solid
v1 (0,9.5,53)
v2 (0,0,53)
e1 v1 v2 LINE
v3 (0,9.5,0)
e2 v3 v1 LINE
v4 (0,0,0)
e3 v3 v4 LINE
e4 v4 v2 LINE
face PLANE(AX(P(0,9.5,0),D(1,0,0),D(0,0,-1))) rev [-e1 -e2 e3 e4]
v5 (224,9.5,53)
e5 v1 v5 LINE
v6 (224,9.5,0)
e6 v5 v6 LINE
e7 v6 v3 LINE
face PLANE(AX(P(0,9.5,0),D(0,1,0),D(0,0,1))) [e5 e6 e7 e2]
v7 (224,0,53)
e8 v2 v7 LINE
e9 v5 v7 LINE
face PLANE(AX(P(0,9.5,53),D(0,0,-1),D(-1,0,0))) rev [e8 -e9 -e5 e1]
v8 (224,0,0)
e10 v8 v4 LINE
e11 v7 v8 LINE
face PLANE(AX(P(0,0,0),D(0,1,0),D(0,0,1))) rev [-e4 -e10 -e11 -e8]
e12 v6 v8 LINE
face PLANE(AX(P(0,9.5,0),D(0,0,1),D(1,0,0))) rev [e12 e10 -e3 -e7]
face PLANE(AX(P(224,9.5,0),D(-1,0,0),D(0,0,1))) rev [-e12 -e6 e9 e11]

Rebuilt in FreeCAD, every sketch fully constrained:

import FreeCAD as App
import Part
import Sketcher
Q = App.Units.Quantity


def add_polygon(sketch, points):
    """Adds a closed chain of lines whose ends are joined by coincident constraints."""
    first, n = sketch.GeometryCount, len(points)
    for a, b in zip(points, points[1:] + points[:1]):
        sketch.addGeometry(Part.LineSegment(App.Vector(*a, 0), App.Vector(*b, 0)), False)
    for i in range(n):
        sketch.addConstraint(Sketcher.Constraint("Coincident", first + i, 2, first + (i + 1) % n, 1))

doc = App.newDocument("Part")
params = doc.addObject("Spreadsheet::Sheet", "Params")
for row, (alias, value) in enumerate([
    ("sketch1_width", "224 mm"),
    ("sketch1_height", "53 mm"),
    ("pad1_length", "9.5 mm"),
], start=1):
    params.set(f"A{row}", alias)
    params.set(f"B{row}", "=" + value)
    params.setAlias(f"B{row}", alias)

body = doc.addObject("PartDesign::Body", "Body")

sketch1 = body.newObject("Sketcher::SketchObject", "Sketch")
sketch1.AttachmentSupport = (doc.getObject("XZ_Plane"), [""])
sketch1.MapMode = "FlatFace"
add_polygon(sketch1, [(0, 0), (0, 53), (224, 53), (224, 0)])
sketch1.addConstraint([
    Sketcher.Constraint("Vertical", 0),
    Sketcher.Constraint("Horizontal", 1),
    Sketcher.Constraint("Vertical", 2),
    Sketcher.Constraint("Horizontal", 3),
    Sketcher.Constraint("Coincident", 3, 2, -1, 1),
    Sketcher.Constraint("DistanceX", 1, 1, 1, 2, Q("224 mm")),
    Sketcher.Constraint("DistanceY", 0, 1, 0, 2, Q("53 mm")),
])
sketch1.setExpression("Constraints[9]", "Params.sketch1_width")
sketch1.setExpression("Constraints[10]", "Params.sketch1_height")
pad1 = body.newObject("PartDesign::Pad", "Pad")
pad1.Profile = sketch1
pad1.setExpression("Length", "Params.pad1_length")
pad1.Reversed = True

doc.recompute()
